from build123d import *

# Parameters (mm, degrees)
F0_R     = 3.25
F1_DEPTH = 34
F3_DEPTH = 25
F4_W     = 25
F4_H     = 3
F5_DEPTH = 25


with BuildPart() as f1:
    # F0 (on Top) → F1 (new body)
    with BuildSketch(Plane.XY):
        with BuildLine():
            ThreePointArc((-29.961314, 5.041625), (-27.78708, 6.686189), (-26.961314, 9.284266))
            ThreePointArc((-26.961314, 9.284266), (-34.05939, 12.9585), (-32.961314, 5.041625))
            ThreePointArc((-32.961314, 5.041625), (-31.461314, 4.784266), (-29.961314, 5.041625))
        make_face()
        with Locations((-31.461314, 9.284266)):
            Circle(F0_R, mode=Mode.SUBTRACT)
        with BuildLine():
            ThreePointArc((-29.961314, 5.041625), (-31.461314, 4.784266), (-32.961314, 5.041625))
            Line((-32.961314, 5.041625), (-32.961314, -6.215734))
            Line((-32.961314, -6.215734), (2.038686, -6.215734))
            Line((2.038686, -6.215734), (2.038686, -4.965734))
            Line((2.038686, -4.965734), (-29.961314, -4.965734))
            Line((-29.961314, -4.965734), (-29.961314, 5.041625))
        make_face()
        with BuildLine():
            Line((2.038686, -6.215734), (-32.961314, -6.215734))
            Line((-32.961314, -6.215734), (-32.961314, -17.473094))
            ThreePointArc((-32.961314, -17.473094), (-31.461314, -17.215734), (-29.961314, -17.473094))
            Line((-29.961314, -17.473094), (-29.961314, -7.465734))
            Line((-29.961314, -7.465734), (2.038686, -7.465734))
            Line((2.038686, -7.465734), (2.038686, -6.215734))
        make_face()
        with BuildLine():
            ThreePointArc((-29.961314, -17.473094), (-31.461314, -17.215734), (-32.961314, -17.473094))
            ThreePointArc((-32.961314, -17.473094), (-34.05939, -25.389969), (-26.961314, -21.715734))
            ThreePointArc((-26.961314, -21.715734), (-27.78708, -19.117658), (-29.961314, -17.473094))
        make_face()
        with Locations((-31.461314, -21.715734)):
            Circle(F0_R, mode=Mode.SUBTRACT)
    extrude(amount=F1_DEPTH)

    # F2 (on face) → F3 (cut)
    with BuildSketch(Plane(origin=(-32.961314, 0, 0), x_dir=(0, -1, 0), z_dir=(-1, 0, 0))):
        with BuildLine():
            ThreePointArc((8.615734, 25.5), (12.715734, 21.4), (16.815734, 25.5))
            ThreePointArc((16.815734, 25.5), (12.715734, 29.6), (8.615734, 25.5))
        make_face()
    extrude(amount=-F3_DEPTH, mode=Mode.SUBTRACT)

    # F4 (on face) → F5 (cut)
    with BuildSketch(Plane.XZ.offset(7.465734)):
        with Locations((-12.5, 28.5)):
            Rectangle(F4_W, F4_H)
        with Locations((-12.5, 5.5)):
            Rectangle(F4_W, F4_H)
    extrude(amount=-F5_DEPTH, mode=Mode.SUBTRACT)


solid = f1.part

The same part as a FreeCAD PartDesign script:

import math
import FreeCAD as App
import Part
import Sketcher
from FreeCAD import Vector
Q = App.Units.Quantity


def add_polygon(sketch, points):
    """Adds a closed chain of lines whose ends are joined by coincident constraints."""
    first, n = sketch.GeometryCount, len(points)
    for a, b in zip(points, points[1:] + points[:1]):
        sketch.addGeometry(Part.LineSegment(App.Vector(*a, 0), App.Vector(*b, 0)), False)
    for i in range(n):
        sketch.addConstraint(Sketcher.Constraint("Coincident", first + i, 2, first + (i + 1) % n, 1))

doc = App.newDocument("Part")
body = doc.addObject("PartDesign::Body", "Body")

# Sketch on XY plane
sketch1 = doc.addObject("Sketcher::SketchObject", "Sketch")
body.addObject(sketch1)
sketch1.AttachmentSupport = (doc.XY_Plane, [""])
sketch1.MapMode = "FlatFace"
sketch1.addGeometry([
    Part.ArcOfCircle(Part.Circle(Vector(-31.5, 9.3, 0), Vector(0, 0, 1), 4.5), math.radians(-71), math.radians(0)),  # 0
    Part.ArcOfCircle(Part.Circle(Vector(-31.5, 9.3, 0), Vector(0, 0, 1), 4.5), math.radians(0), math.radians(251)),  # 1
    Part.LineSegment(Vector(-33, 5, 0), Vector(-33, -17.5, 0)),  # 2
    Part.ArcOfCircle(Part.Circle(Vector(-31.5, -21.7, 0), Vector(0, 0, 1), 4.5), math.radians(109), math.radians(360)),  # 3
    Part.ArcOfCircle(Part.Circle(Vector(-31.5, -21.7, 0), Vector(0, 0, 1), 4.5), math.radians(0), math.radians(71)),  # 4
    Part.LineSegment(Vector(-30, -17.5, 0), Vector(-30, -7.5, 0)),  # 5
    Part.LineSegment(Vector(-30, -7.5, 0), Vector(2, -7.5, 0)),  # 6
    Part.LineSegment(Vector(2, -7.5, 0), Vector(2, -5, 0)),  # 7
    Part.LineSegment(Vector(2, -5, 0), Vector(-30, -5, 0)),  # 8
    Part.LineSegment(Vector(-30, -5, 0), Vector(-30, 5, 0)),  # 9
    Part.Circle(Vector(-31.5, -21.7, 0), Vector(0, 0, 1), 3.2),  # 10
    Part.Circle(Vector(-31.5, 9.3, 0), Vector(0, 0, 1), 3.2),  # 11
], False)
sketch1.addConstraint([
    Sketcher.Constraint("Tangent", 0, 2, 1, 1),
    Sketcher.Constraint("Coincident", 1, 2, 2, 1),
    Sketcher.Constraint("Coincident", 2, 2, 3, 1),
    Sketcher.Constraint("Tangent", 3, 2, 4, 1),
    Sketcher.Constraint("Coincident", 4, 2, 5, 1),
    Sketcher.Constraint("Coincident", 5, 2, 6, 1),
    Sketcher.Constraint("Coincident", 6, 2, 7, 1),
    Sketcher.Constraint("Coincident", 7, 2, 8, 1),
    Sketcher.Constraint("Coincident", 8, 2, 9, 1),
    Sketcher.Constraint("Coincident", 9, 2, 0, 1),
    Sketcher.Constraint("Vertical", 2),
    Sketcher.Constraint("Vertical", 5),
    Sketcher.Constraint("Horizontal", 6),
    Sketcher.Constraint("Vertical", 7),
    Sketcher.Constraint("Horizontal", 8),
    Sketcher.Constraint("Vertical", 9),
    Sketcher.Constraint("Coincident", 10, 3, 3, 3),
    Sketcher.Constraint("Coincident", 11, 3, 0, 3),
    Sketcher.Constraint("Equal", 0, 1),
    Sketcher.Constraint("Equal", 1, 3),
    Sketcher.Constraint("Equal", 3, 4),
    Sketcher.Constraint("Equal", 10, 11),
    Sketcher.Constraint("Horizontal", 11, 3, 0, 2),
    Sketcher.Constraint("Horizontal", 10, 3, 3, 2),
    Sketcher.Constraint("Horizontal", 2, 2, 4, 2),
    Sketcher.Constraint("Horizontal", 1, 2, 9, 2),
    Sketcher.Constraint("Vertical", 1, 3, 3, 3),
    Sketcher.Constraint("Equal", 5, 9),
    Sketcher.Constraint("Diameter", 10, Q("6.5 mm")),
    Sketcher.Constraint("Radius", 0, Q("4.500001 mm")),
    Sketcher.Constraint("DistanceX", 6, 1, 6, 2, Q("32 mm")),
    Sketcher.Constraint("DistanceY", 7, 1, 7, 2, Q("2.5 mm")),
    Sketcher.Constraint("DistanceY", 3, 3, 1, 3, Q("31 mm")),
    Sketcher.Constraint("DistanceX", 1, 2, 0, 2, Q("6 mm")),
    Sketcher.Constraint("DistanceX", 0, 3, -1, 1, Q("31.461315 mm")),
    Sketcher.Constraint("DistanceY", -1, 1, 0, 3, Q("9.284266 mm")),
])
pad1 = doc.addObject("PartDesign::Pad", "Pad")
body.addObject(pad1)
pad1.Profile = sketch1
pad1.Length = 34

# Sketch on YZ plane
sketch2 = doc.addObject("Sketcher::SketchObject", "Sketch001")
body.addObject(sketch2)
sketch2.AttachmentSupport = (doc.YZ_Plane, [""])
sketch2.MapMode = "FlatFace"
sketch2.AttachmentOffset = App.Placement(Vector(0, 0, -32.961314), App.Rotation())
sketch2.addGeometry(Part.Circle(Vector(-12.7, 25.5, 0), Vector(0, 0, 1), 4.1), False)
sketch2.addConstraint([
    Sketcher.Constraint("Diameter", 0, Q("8.2 mm")),
    Sketcher.Constraint("DistanceY", -1, 1, 0, 3, Q("25.5 mm")),
    Sketcher.Constraint("DistanceX", 0, 3, -1, 1, Q("12.715734 mm")),
])
pocket1 = doc.addObject("PartDesign::Pocket", "Pocket")
body.addObject(pocket1)
pocket1.Profile = sketch2
pocket1.Length = 25
pocket1.Reversed = True

# Sketch on XZ plane
sketch3 = doc.addObject("Sketcher::SketchObject", "Sketch002")
body.addObject(sketch3)
sketch3.AttachmentSupport = (doc.XZ_Plane, [""])
sketch3.MapMode = "FlatFace"
sketch3.AttachmentOffset = App.Placement(Vector(0, 0, 7.465734), App.Rotation())
add_polygon(sketch3, [(-25, 30), (-25, 27), (0, 27), (0, 30)])  # lines 0-3
add_polygon(sketch3, [(-25, 7), (-25, 4), (0, 4), (0, 7)])  # lines 4-7
sketch3.addConstraint([
    Sketcher.Constraint("Vertical", 0),
    Sketcher.Constraint("Horizontal", 1),
    Sketcher.Constraint("Vertical", 2),
    Sketcher.Constraint("Horizontal", 3),
    Sketcher.Constraint("Vertical", 4),
    Sketcher.Constraint("Horizontal", 5),
    Sketcher.Constraint("Vertical", 6),
    Sketcher.Constraint("Horizontal", 7),
    Sketcher.Constraint("PointOnObject", 1, 2, -2),
    Sketcher.Constraint("PointOnObject", 5, 2, -2),
    Sketcher.Constraint("Vertical", 3, 2, 4, 2),
    Sketcher.Constraint("Equal", 2, 4),
    Sketcher.Constraint("DistanceX", 1, 1, 1, 2, Q("25 mm")),
    Sketcher.Constraint("DistanceY", 0, 2, 0, 1, Q("3 mm")),
    Sketcher.Constraint("DistanceY", -1, 1, 0, 2, Q("27 mm")),
    Sketcher.Constraint("DistanceY", -1, 1, 4, 2, Q("4 mm")),
])
pocket2 = doc.addObject("PartDesign::Pocket", "Pocket001")
body.addObject(pocket2)
pocket2.Profile = sketch3
pocket2.Length = 25

doc.recompute()
